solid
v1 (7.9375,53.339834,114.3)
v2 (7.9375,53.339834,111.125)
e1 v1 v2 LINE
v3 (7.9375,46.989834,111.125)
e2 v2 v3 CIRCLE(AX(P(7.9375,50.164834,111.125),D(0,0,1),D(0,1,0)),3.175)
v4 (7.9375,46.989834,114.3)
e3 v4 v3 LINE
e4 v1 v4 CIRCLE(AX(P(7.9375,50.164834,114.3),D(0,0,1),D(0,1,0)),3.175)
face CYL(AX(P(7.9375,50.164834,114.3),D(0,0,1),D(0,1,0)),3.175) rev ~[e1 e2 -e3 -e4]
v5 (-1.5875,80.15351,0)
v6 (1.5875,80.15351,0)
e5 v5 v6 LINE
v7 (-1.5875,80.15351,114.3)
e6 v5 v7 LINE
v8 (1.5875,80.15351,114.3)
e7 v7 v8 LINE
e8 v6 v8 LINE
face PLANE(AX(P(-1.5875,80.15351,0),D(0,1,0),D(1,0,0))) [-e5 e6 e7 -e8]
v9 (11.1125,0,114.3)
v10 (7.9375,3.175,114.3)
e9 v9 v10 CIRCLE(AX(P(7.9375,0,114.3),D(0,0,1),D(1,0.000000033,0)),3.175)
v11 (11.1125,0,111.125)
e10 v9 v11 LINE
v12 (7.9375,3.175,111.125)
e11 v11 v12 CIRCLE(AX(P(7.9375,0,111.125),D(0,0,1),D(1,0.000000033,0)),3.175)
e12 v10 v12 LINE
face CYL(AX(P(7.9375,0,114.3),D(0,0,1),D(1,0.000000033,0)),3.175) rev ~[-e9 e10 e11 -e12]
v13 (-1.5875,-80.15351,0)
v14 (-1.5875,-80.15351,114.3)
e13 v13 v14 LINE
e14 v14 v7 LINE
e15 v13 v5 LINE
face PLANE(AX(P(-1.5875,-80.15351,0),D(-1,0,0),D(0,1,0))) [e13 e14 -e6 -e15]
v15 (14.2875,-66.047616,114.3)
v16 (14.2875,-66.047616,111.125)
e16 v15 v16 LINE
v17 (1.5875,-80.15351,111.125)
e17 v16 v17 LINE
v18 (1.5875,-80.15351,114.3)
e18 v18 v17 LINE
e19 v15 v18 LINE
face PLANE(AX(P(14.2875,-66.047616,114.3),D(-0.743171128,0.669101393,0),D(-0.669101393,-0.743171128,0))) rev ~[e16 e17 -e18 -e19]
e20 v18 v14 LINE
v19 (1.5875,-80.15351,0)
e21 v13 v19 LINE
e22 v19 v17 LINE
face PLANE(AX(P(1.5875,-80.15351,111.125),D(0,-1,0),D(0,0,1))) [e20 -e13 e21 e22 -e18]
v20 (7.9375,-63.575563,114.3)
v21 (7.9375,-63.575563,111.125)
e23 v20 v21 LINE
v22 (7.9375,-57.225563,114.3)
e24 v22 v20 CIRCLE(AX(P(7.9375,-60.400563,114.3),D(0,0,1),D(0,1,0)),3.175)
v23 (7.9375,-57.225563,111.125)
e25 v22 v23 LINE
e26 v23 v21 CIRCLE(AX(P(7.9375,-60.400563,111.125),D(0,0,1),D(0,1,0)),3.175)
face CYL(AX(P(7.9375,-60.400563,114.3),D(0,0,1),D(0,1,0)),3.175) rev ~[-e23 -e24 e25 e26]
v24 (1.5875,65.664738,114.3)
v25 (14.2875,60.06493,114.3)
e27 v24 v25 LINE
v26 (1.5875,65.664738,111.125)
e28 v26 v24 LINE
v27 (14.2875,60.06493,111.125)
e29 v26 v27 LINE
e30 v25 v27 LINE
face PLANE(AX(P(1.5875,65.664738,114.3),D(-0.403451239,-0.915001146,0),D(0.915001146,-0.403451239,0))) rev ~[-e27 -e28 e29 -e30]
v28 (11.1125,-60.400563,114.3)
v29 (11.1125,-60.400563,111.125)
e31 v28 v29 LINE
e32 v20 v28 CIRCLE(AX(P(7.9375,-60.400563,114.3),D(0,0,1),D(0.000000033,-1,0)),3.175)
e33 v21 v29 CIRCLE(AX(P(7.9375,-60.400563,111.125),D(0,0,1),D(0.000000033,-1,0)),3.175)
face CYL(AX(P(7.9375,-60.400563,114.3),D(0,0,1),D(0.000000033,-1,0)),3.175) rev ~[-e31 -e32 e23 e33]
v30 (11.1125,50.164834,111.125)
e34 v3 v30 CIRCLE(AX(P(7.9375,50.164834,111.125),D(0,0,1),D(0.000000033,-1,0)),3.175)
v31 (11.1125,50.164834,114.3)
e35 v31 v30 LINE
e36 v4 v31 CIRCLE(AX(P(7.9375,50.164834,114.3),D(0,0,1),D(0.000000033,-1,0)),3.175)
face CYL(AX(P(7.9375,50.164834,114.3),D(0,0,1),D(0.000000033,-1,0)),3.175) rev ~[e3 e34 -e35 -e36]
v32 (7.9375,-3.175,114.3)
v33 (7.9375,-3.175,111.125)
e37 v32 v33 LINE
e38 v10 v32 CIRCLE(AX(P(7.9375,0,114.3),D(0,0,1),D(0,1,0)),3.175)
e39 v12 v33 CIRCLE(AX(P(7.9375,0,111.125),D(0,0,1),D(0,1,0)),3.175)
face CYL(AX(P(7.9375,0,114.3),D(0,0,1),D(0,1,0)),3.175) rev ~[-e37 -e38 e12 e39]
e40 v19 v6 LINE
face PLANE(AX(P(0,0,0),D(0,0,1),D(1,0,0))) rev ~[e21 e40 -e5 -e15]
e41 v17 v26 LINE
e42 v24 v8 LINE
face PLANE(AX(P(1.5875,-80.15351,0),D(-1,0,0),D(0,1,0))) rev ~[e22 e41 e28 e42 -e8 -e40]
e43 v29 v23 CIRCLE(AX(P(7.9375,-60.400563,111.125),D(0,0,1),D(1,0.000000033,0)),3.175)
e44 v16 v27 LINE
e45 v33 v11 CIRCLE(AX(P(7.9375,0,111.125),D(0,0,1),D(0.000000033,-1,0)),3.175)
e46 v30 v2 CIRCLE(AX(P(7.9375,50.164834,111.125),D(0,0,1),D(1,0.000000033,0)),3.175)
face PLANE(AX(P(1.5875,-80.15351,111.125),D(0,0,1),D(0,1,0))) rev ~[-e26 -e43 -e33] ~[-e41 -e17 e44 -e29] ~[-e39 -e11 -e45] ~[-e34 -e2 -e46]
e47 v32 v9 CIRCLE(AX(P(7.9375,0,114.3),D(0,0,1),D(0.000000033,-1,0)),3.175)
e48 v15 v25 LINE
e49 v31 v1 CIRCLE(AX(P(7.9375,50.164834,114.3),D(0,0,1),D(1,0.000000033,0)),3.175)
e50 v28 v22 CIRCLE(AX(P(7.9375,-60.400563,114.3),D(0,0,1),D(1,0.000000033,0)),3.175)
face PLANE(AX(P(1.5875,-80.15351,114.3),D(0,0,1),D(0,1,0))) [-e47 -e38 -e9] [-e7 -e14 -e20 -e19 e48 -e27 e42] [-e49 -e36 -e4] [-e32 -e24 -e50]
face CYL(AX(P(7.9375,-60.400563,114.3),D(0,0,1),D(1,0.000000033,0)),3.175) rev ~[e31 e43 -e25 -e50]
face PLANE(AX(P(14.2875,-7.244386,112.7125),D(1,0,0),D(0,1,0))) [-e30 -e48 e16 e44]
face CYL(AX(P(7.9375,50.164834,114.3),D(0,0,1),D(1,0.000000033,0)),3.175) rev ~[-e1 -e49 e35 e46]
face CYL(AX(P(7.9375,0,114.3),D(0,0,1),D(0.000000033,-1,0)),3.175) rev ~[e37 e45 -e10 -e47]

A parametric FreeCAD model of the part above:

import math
import FreeCAD as App
import Part
import Sketcher
from FreeCAD import Vector
Q = App.Units.Quantity

doc = App.newDocument("Part")
params = doc.addObject("Spreadsheet::Sheet", "Params")
for row, (alias, value) in enumerate([
    ("sketch1_width", "0.125 in"),
    ("pad1_length", "4.5 in"),
    ("sketch2_height", "0.125 in"),
    ("pad2_length", "0.5 in"),
    ("sketch3_width", "0.5 in"),
    ("pocket1_length", "1 in"),
    ("sketch4_radius", "0.125 in"),
    ("pocket2_length", "1 in"),
], start=1):
    params.set(f"A{row}", alias)
    params.set(f"B{row}", "=" + value)
    params.setAlias(f"B{row}", alias)

body = doc.addObject("PartDesign::Body", "Body")

# Sketch on XY plane
sketch1 = body.newObject("Sketcher::SketchObject", "Sketch")
sketch1.AttachmentSupport = (doc.getObject("XY_Plane"), [""])
sketch1.MapMode = "FlatFace"
sketch1.addGeometry([
    Part.LineSegment(Vector(-1.6, 80.2, 0), Vector(-1.6, -80.2, 0)),
    Part.LineSegment(Vector(-1.6, -80.2, 0), Vector(1.6, -80.2, 0)),
    Part.LineSegment(Vector(1.6, -80.2, 0), Vector(1.6, 80.2, 0)),
    Part.LineSegment(Vector(1.6, 80.2, 0), Vector(-1.6, 80.2, 0)),
], False)
sketch1.addConstraint([
    Sketcher.Constraint("Coincident", 0, 2, 1, 1),
    Sketcher.Constraint("Coincident", 1, 2, 2, 1),
    Sketcher.Constraint("Coincident", 2, 2, 3, 1),
    Sketcher.Constraint("Coincident", 3, 2, 0, 1),
    Sketcher.Constraint("Vertical", 0),
    Sketcher.Constraint("Horizontal", 1),
    Sketcher.Constraint("Vertical", 2),
    Sketcher.Constraint("Horizontal", 3),
    Sketcher.Constraint("Symmetric", 0, 2, 2, 2, -1, 1),
    Sketcher.Constraint("DistanceX", 1, 1, 1, 2, Q("0.125 in")),
    Sketcher.Constraint("DistanceY", 0, 2, 0, 1, Q("6.3113 in")),
])
sketch1.setExpression("Constraints[9]", "Params.sketch1_width")
pad1 = body.newObject("PartDesign::Pad", "Pad")
pad1.Profile = sketch1
pad1.setExpression("Length", "Params.pad1_length")

# Sketch on YZ plane
sketch2 = body.newObject("Sketcher::SketchObject", "Sketch001")
sketch2.AttachmentSupport = (doc.getObject("YZ_Plane"), [""])
sketch2.MapMode = "FlatFace"
sketch2.AttachmentOffset = App.Placement(Vector(0, 0, 0.0625 * 25.4), App.Rotation())
sketch2.addGeometry([
    Part.LineSegment(Vector(-80.2, 114.3, 0), Vector(-80.2, 111.1, 0)),
    Part.LineSegment(Vector(-80.2, 111.1, 0), Vector(65.7, 111.1, 0)),
    Part.LineSegment(Vector(65.7, 111.1, 0), Vector(65.7, 114.3, 0)),
    Part.LineSegment(Vector(65.7, 114.3, 0), Vector(-80.2, 114.3, 0)),
], False)
sketch2.addConstraint([
    Sketcher.Constraint("Coincident", 0, 2, 1, 1),
    Sketcher.Constraint("Coincident", 1, 2, 2, 1),
    Sketcher.Constraint("Coincident", 2, 2, 3, 1),
    Sketcher.Constraint("Coincident", 3, 2, 0, 1),
    Sketcher.Constraint("Vertical", 0),
    Sketcher.Constraint("Horizontal", 1),
    Sketcher.Constraint("Vertical", 2),
    Sketcher.Constraint("Horizontal", 3),
    Sketcher.Constraint("DistanceY", -1, 1, 2, 2, Q("4.5 in")),
    Sketcher.Constraint("DistanceY", 0, 2, 0, 1, Q("0.125 in")),
    Sketcher.Constraint("DistanceX", 1, 1, 1, 2, Q("145.818248 mm")),
    Sketcher.Constraint("DistanceX", 0, 2, -1, 1, Q("80.15351 mm")),
])
sketch2.setExpression("Constraints[9]", "Params.sketch2_height")
pad2 = body.newObject("PartDesign::Pad", "Pad001")
pad2.Profile = sketch2
pad2.setExpression("Length", "Params.pad2_length")

# Sketch on XY plane
sketch3 = body.newObject("Sketcher::SketchObject", "Sketch002")
sketch3.AttachmentSupport = (doc.getObject("XY_Plane"), [""])
sketch3.MapMode = "FlatFace"
sketch3.AttachmentOffset = App.Placement(Vector(0, 0, 4.5 * 25.4), App.Rotation())
sketch3.addGeometry([
    Part.LineSegment(Vector(14, 66, 0), Vector(2, 66, 0)),  # 0
    Part.LineSegment(Vector(2, 66, 0), Vector(14, 60, 0)),  # 1
    Part.LineSegment(Vector(14, 60, 0), Vector(14, 66, 0)),  # 2
    Part.LineSegment(Vector(2, -80, 0), Vector(14, -80, 0)),  # 3
    Part.LineSegment(Vector(14, -80, 0), Vector(14, -66, 0)),  # 4
    Part.LineSegment(Vector(14, -66, 0), Vector(2, -80, 0)),  # 5
], False)
sketch3.addConstraint([
    Sketcher.Constraint("Coincident", 0, 2, 1, 1),
    Sketcher.Constraint("Coincident", 1, 2, 2, 1),
    Sketcher.Constraint("Coincident", 2, 2, 0, 1),
    Sketcher.Constraint("Coincident", 3, 2, 4, 1),
    Sketcher.Constraint("Coincident", 4, 2, 5, 1),
    Sketcher.Constraint("Coincident", 5, 2, 3, 1),
    Sketcher.Constraint("Horizontal", 0),
    Sketcher.Constraint("Vertical", 2),
    Sketcher.Constraint("Horizontal", 3),
    Sketcher.Constraint("Vertical", 4),
    Sketcher.Constraint("Vertical", 2, 2, 3, 2),
    Sketcher.Constraint("Vertical", 0, 2, 5, 2),
    Sketcher.Constraint("DistanceX", 0, 2, 0, 1, Q("0.5 in")),
    Sketcher.Constraint("DistanceX", -1, 1, 0, 2, Q("0.0625 in")),
    Sketcher.Constraint("DistanceY", 4, 2, -1, 1, Q("2.6002998 in")),
    Sketcher.Constraint("DistanceY", 2, 1, 2, 2, Q("5.599808 mm")),
    Sketcher.Constraint("Distance", 5, Q("18.980681 mm")),
    Sketcher.Constraint("DistanceY", -1, 1, 0, 2, Q("65.664738 mm")),
])
sketch3.setExpression("Constraints[12]", "Params.sketch3_width")
pocket1 = body.newObject("PartDesign::Pocket", "Pocket")
pocket1.Profile = sketch3
pocket1.setExpression("Length", "Params.pocket1_length")

# Sketch on XY plane
sketch4 = body.newObject("Sketcher::SketchObject", "Sketch003")
sketch4.AttachmentSupport = (doc.getObject("XY_Plane"), [""])
sketch4.MapMode = "FlatFace"
sketch4.AttachmentOffset = App.Placement(Vector(0, 0, 4.5 * 25.4), App.Rotation())
sketch4.addGeometry([
    Part.ArcOfCircle(Part.Circle(Vector(7.9, 50.2, 0), Vector(0, 0, 1), 3.2), math.radians(0), math.radians(90)),  # 0
    Part.ArcOfCircle(Part.Circle(Vector(7.9, 50.2, 0), Vector(0, 0, 1), 3.2), math.radians(90), math.radians(270)),  # 1
    Part.ArcOfCircle(Part.Circle(Vector(7.9, 50.2, 0), Vector(0, 0, 1), 3.2), math.radians(-90), math.radians(0)),  # 2
    Part.ArcOfCircle(Part.Circle(Vector(7.9, -60.4, 0), Vector(0, 0, 1), 3.2), math.radians(0), math.radians(90)),  # 3
    Part.ArcOfCircle(Part.Circle(Vector(7.9, -60.4, 0), Vector(0, 0, 1), 3.2), math.radians(90), math.radians(270)),  # 4
    Part.ArcOfCircle(Part.Circle(Vector(7.9, -60.4, 0), Vector(0, 0, 1), 3.2), math.radians(-90), math.radians(0)),  # 5
    Part.ArcOfCircle(Part.Circle(Vector(7.9, 0, 0), Vector(0, 0, 1), 3.2), math.radians(0), math.radians(90)),  # 6
    Part.ArcOfCircle(Part.Circle(Vector(7.9, 0, 0), Vector(0, 0, 1), 3.2), math.radians(90), math.radians(270)),  # 7
    Part.ArcOfCircle(Part.Circle(Vector(7.9, 0, 0), Vector(0, 0, 1), 3.2), math.radians(-90), math.radians(0)),  # 8
], False)
sketch4.addConstraint([
    Sketcher.Constraint("Tangent", 0, 2, 1, 1),
    Sketcher.Constraint("Tangent", 1, 2, 2, 1),
    Sketcher.Constraint("Tangent", 2, 2, 0, 1),
    Sketcher.Constraint("Tangent", 3, 2, 4, 1),
    Sketcher.Constraint("Tangent", 4, 2, 5, 1),
    Sketcher.Constraint("Tangent", 5, 2, 3, 1),
    Sketcher.Constraint("Tangent", 6, 2, 7, 1),
    Sketcher.Constraint("Tangent", 7, 2, 8, 1),
    Sketcher.Constraint("Tangent", 8, 2, 6, 1),
    Sketcher.Constraint("Equal", 2, 3),
    Sketcher.Constraint("Equal", 5, 6),
    Sketcher.Constraint("Symmetric", 6, 2, 7, 2, -1),
    Sketcher.Constraint("PointOnObject", 8, 2, -1),
    Sketcher.Constraint("Horizontal", 1, 3, 2, 2),
    Sketcher.Constraint("Horizontal", 4, 3, 5, 2),
    Sketcher.Constraint("Vertical", 2, 3, 3, 3),
    Sketcher.Constraint("Vertical", 5, 3, 6, 3),
    Sketcher.Constraint("Vertical", 8, 3, 0, 2),
    Sketcher.Constraint("Vertical", 0, 2, 1, 2),
    Sketcher.Constraint("Vertical", 1, 2, 3, 2),
    Sketcher.Constraint("Vertical", 3, 2, 4, 2),
    Sketcher.Constraint("Vertical", 4, 2, 6, 2),
    Sketcher.Constraint("Radius", 0, Q("0.125 in")),
    Sketcher.Constraint("DistanceX", -1, 1, 0, 3, Q("0.3125 in")),
    Sketcher.Constraint("DistanceY", -1, 1, 0, 3, Q("50.164834 mm")),
    Sketcher.Constraint("DistanceY", 3, 3, -1, 1, Q("60.400563 mm")),
])
sketch4.setExpression("Constraints[22]", "Params.sketch4_radius")
pocket2 = body.newObject("PartDesign::Pocket", "Pocket001")
pocket2.Profile = sketch4
pocket2.setExpression("Length", "Params.pocket2_length")

doc.recompute()
